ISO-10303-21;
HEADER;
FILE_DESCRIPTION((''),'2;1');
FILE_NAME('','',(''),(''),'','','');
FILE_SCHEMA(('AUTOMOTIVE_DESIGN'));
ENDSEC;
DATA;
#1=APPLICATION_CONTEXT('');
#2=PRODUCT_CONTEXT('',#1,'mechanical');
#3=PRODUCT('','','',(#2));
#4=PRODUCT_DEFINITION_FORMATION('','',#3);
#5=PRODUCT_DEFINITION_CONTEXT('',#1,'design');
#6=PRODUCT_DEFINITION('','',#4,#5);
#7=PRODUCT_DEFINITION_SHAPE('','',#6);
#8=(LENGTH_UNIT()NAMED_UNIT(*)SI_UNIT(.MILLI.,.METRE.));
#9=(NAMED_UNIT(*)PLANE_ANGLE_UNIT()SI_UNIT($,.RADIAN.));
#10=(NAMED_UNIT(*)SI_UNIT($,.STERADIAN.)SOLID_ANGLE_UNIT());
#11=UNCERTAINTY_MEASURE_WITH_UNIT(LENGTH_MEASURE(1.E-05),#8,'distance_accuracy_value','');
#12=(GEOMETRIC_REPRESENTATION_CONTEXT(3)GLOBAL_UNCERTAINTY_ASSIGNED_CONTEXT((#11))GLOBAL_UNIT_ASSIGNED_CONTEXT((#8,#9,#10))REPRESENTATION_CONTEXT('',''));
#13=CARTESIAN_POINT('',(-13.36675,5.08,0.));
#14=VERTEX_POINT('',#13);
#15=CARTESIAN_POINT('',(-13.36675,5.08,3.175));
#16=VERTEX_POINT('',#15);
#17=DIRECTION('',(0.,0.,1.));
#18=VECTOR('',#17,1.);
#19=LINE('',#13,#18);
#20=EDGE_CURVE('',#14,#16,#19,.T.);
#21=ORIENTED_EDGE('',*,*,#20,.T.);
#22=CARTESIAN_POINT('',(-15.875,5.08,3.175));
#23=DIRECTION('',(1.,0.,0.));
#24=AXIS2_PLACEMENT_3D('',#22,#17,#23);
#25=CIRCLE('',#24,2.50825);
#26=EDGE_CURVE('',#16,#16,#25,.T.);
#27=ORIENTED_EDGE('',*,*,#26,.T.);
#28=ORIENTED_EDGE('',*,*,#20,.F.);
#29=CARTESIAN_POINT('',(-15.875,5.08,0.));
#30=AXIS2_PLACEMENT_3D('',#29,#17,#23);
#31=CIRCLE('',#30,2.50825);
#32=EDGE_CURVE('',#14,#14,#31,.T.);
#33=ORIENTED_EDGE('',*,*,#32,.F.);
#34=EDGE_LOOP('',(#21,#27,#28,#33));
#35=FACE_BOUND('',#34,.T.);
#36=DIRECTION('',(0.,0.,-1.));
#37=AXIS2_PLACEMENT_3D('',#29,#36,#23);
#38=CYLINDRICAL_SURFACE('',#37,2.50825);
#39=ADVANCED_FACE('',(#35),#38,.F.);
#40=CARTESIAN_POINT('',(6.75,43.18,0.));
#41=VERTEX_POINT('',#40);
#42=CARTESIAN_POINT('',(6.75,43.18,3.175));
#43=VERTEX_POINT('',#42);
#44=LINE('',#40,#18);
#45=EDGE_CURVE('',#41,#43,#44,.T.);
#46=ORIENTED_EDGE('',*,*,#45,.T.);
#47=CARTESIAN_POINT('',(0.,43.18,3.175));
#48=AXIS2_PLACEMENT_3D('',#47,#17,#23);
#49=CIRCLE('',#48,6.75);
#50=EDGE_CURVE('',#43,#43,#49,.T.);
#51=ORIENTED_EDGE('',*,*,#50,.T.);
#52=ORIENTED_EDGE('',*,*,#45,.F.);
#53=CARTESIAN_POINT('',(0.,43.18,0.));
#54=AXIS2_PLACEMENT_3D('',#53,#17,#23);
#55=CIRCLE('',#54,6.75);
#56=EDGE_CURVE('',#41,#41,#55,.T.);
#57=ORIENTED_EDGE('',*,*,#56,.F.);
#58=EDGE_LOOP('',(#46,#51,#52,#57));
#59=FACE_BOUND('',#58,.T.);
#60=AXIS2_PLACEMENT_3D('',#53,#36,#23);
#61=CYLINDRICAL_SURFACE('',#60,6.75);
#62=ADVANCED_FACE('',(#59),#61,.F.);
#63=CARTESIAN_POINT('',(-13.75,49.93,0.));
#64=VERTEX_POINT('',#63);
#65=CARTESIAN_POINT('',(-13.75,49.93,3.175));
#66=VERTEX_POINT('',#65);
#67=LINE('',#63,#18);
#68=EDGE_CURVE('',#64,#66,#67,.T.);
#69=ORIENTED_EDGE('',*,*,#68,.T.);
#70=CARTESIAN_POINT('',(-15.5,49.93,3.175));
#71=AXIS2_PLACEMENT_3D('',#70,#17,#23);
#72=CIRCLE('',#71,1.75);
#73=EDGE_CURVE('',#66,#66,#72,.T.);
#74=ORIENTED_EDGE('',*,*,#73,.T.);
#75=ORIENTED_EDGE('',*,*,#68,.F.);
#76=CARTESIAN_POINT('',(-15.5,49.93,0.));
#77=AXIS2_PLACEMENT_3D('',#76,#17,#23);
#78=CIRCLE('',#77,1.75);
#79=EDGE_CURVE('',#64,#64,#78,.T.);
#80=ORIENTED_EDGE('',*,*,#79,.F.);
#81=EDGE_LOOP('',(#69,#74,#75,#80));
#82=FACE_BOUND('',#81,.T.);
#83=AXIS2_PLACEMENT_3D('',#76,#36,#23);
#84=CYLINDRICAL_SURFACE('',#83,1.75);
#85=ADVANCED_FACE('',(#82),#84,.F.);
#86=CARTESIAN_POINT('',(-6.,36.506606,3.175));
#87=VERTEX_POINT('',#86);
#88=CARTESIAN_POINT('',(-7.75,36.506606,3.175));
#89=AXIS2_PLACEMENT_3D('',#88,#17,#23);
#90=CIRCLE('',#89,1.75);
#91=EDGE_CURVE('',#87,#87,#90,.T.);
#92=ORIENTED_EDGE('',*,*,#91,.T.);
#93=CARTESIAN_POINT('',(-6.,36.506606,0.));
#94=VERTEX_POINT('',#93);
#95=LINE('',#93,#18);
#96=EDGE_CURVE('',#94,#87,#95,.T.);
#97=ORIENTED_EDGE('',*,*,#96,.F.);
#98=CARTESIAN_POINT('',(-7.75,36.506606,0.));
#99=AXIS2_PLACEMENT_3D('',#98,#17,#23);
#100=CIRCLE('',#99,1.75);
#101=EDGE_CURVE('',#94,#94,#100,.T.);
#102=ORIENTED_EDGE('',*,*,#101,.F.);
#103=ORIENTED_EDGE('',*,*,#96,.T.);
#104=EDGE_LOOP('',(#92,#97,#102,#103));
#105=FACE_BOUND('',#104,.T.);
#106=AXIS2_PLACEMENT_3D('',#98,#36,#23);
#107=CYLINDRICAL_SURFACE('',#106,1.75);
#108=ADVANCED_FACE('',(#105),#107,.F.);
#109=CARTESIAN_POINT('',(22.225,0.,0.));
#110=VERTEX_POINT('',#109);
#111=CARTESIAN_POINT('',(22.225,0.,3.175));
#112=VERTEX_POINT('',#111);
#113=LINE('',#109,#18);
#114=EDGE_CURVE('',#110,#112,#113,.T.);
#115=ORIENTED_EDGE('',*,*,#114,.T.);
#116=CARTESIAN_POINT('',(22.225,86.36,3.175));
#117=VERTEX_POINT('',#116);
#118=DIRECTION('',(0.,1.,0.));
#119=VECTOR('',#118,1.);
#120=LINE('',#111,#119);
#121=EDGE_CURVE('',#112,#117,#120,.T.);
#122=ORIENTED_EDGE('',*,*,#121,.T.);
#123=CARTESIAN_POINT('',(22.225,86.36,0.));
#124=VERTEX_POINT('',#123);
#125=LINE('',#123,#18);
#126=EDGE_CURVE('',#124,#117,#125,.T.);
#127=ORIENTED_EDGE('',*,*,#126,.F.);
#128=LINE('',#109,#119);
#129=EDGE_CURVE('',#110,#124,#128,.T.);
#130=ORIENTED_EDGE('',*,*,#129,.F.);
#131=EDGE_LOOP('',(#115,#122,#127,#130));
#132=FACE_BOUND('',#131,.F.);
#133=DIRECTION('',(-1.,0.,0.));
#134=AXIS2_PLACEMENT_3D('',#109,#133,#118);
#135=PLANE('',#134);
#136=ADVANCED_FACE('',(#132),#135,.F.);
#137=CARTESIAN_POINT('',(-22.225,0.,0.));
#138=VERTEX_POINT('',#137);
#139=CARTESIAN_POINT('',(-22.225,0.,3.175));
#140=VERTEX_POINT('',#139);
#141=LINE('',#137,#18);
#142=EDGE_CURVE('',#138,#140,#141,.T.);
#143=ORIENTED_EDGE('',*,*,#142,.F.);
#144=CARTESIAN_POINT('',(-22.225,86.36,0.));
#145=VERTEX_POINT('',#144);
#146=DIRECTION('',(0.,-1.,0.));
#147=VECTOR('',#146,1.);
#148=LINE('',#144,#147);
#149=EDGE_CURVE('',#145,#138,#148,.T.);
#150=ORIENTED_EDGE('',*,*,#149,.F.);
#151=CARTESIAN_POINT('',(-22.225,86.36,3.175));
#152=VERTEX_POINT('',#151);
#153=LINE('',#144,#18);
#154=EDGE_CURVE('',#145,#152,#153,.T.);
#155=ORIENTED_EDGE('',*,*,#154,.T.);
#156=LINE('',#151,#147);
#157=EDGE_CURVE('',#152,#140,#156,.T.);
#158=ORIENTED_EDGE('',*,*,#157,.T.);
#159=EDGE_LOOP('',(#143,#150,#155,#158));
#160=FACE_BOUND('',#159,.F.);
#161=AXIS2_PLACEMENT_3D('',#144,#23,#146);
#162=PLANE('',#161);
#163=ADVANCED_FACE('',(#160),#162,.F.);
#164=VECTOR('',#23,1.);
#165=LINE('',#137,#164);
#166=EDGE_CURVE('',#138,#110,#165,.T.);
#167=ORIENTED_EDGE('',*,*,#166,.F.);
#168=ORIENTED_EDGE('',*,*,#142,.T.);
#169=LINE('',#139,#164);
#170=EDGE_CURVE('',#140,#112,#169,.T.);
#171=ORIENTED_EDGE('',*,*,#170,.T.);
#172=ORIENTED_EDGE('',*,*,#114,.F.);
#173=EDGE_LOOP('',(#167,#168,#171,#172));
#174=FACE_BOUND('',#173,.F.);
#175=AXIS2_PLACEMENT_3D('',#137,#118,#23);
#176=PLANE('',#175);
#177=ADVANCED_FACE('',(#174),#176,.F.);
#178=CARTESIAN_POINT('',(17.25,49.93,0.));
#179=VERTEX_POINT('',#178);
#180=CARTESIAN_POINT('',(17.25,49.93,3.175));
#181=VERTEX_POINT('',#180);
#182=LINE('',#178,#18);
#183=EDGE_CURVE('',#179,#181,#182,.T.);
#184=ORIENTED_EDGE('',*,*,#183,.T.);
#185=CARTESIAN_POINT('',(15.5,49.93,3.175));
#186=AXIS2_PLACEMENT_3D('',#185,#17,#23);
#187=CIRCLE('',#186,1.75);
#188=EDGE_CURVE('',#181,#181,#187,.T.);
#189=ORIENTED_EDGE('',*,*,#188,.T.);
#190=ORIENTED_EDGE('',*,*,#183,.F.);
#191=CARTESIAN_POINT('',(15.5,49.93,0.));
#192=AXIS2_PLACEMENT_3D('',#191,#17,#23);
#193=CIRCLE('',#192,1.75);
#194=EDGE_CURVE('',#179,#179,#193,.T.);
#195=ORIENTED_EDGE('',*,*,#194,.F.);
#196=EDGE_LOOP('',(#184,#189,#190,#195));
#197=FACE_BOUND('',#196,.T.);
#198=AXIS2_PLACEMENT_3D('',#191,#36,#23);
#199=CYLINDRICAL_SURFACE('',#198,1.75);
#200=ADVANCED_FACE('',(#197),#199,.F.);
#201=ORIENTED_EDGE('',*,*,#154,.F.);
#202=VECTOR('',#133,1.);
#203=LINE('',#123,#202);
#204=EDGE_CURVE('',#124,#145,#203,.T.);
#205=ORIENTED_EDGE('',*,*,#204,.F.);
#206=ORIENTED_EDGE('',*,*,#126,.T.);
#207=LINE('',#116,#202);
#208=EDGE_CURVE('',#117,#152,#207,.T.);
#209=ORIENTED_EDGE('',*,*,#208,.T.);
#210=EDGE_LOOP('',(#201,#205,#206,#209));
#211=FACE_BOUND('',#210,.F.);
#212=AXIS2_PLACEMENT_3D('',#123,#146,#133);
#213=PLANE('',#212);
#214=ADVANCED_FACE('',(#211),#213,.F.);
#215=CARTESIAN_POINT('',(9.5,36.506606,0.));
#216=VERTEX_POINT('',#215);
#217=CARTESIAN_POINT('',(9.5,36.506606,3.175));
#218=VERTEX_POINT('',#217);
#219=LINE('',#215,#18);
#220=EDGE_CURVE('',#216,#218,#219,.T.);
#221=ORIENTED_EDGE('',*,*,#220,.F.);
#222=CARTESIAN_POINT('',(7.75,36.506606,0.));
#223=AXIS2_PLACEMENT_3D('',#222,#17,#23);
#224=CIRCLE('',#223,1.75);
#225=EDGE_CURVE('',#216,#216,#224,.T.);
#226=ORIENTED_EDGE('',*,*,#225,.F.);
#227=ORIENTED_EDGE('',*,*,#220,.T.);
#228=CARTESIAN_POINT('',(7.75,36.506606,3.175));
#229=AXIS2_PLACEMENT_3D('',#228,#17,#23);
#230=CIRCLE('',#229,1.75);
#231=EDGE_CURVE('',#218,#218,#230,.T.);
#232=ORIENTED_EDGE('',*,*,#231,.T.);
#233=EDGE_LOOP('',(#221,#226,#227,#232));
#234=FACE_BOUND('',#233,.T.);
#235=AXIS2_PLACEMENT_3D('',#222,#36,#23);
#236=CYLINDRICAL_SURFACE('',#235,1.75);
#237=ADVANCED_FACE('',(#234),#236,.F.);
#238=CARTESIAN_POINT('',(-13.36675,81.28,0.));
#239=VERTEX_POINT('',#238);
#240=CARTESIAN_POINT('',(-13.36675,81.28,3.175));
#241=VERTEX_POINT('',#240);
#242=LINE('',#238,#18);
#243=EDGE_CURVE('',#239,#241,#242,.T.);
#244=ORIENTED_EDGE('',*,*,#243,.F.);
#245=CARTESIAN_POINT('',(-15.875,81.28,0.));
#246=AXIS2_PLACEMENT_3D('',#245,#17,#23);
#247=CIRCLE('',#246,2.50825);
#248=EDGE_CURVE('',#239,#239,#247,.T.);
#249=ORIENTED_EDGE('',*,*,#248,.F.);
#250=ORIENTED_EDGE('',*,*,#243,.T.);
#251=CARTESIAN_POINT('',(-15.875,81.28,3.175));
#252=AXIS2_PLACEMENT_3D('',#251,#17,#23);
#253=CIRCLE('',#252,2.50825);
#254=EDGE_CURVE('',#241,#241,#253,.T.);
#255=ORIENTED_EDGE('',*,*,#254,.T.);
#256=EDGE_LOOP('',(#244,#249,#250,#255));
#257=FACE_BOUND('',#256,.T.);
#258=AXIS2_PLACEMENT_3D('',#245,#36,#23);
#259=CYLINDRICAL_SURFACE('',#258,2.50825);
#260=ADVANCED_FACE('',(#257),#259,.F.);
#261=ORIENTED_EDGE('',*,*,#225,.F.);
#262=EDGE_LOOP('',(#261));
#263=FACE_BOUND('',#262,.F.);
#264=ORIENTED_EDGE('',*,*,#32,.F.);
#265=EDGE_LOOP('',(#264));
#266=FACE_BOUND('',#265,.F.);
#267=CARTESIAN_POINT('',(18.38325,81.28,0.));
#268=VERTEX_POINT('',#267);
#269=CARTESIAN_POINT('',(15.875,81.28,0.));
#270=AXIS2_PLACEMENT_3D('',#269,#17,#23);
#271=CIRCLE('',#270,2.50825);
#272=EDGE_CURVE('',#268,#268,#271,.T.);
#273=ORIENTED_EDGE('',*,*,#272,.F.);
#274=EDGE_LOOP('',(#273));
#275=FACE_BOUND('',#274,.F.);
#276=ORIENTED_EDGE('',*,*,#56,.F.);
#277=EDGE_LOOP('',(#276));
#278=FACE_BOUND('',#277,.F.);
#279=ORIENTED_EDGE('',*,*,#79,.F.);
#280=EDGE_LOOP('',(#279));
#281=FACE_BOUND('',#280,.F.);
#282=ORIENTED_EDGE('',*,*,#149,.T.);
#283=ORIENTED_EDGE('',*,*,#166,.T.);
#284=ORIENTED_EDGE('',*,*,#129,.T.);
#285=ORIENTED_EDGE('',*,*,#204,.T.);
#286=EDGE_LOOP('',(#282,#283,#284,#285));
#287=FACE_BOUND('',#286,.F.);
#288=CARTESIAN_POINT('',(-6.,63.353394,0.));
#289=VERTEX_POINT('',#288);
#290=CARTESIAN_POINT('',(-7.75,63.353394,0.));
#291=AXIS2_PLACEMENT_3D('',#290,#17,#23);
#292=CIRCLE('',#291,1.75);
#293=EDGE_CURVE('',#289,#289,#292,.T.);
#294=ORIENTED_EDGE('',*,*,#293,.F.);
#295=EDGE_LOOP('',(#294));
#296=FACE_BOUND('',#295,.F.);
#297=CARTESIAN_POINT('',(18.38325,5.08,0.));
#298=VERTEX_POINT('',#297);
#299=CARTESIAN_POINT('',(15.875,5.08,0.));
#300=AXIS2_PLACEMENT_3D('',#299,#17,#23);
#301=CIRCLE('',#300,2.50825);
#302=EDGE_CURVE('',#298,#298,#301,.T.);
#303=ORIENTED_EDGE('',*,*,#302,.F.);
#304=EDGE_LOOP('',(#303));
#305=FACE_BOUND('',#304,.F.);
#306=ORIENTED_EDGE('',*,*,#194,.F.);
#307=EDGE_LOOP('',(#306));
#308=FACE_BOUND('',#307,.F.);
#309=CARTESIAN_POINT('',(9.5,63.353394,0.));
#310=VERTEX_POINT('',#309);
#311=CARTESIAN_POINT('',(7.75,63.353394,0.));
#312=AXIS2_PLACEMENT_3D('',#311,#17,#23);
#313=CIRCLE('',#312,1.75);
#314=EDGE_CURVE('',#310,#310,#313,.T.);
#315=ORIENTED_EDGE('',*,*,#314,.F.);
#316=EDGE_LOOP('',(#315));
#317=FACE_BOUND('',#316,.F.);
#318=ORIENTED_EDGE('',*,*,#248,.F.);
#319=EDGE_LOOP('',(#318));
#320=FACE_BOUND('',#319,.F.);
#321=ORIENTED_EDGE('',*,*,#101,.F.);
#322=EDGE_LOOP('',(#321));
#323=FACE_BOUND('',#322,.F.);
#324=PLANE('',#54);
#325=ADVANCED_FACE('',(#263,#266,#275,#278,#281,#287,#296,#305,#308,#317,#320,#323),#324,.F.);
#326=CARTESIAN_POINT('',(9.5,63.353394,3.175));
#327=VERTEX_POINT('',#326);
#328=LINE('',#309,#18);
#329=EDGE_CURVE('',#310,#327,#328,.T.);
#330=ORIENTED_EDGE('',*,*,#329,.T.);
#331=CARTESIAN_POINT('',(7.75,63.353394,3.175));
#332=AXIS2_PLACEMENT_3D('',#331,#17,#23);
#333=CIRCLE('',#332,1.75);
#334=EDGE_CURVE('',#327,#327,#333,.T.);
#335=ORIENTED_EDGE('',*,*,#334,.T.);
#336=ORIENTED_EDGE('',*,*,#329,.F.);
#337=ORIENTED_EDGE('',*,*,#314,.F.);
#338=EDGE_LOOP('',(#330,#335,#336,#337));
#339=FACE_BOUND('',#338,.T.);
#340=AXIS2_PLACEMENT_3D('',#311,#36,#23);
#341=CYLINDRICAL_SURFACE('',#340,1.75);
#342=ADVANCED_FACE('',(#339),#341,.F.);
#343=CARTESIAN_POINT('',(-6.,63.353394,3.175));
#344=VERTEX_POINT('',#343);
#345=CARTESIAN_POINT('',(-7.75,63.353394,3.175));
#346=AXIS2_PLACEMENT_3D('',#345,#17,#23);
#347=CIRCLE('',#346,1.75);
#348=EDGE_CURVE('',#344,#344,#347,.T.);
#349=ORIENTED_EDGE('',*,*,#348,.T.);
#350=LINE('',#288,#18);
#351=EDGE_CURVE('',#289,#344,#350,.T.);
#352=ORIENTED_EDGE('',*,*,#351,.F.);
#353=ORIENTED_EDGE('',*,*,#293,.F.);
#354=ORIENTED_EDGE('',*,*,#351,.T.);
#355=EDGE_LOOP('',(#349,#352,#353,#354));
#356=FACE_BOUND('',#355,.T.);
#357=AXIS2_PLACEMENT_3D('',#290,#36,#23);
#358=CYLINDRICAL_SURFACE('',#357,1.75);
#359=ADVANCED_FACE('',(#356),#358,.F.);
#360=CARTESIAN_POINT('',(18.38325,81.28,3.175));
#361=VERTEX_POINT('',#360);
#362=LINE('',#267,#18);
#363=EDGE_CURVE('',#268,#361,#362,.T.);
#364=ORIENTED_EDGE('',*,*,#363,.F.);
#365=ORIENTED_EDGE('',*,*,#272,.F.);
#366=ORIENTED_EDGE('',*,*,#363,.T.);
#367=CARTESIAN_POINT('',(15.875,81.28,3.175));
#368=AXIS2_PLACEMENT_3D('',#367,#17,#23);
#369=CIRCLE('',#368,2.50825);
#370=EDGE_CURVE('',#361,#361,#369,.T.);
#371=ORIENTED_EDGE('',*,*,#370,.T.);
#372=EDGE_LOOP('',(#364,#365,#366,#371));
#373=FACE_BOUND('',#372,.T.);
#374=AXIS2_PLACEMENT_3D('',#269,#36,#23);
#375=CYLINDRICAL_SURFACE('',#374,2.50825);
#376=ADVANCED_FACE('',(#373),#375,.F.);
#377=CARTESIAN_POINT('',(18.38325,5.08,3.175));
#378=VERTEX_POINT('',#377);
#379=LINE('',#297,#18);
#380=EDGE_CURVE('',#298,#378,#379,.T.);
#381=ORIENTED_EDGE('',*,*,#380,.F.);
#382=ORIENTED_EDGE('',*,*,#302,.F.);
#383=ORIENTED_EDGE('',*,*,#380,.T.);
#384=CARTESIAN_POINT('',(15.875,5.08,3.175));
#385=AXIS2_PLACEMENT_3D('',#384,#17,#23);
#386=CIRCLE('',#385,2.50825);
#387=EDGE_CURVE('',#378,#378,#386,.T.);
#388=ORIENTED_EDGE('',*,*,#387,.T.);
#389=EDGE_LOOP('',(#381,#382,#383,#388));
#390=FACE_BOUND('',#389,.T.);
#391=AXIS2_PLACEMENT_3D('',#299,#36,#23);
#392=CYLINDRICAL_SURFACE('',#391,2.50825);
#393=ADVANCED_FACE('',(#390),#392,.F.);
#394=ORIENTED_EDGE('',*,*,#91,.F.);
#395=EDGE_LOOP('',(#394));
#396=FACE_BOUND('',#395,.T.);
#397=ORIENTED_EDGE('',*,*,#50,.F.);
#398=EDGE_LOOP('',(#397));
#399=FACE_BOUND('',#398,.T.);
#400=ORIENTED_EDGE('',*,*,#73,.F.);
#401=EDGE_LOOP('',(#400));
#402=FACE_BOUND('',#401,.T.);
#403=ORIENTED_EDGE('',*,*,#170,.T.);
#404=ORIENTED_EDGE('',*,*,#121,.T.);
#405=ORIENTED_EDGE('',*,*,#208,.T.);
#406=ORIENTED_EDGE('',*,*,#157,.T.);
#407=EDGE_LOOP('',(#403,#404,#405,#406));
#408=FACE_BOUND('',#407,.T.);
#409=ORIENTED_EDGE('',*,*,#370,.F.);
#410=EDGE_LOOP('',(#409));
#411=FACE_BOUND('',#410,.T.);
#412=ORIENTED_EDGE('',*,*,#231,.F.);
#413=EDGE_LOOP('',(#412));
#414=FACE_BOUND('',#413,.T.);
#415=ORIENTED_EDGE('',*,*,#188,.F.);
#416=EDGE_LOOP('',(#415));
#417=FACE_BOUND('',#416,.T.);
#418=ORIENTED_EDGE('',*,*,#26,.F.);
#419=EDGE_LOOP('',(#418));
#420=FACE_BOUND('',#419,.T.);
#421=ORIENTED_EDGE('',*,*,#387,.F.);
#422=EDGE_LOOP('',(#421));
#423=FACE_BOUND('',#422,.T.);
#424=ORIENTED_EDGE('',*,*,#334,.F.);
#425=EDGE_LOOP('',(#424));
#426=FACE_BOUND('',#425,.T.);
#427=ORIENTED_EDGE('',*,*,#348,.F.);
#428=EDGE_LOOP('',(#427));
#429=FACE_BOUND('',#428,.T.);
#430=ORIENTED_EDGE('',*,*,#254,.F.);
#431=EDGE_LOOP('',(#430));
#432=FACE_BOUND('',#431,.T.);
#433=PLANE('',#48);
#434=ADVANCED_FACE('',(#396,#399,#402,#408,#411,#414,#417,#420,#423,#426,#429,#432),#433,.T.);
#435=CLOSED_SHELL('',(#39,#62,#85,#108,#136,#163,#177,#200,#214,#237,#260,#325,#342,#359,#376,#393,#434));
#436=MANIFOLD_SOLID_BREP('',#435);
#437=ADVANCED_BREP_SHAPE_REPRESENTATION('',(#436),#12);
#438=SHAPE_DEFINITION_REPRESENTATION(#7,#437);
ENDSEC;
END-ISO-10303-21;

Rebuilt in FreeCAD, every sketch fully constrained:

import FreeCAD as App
import Part
import Sketcher

V = App.Vector
Q = App.Units.Quantity

doc = App.newDocument("Part")
body = doc.addObject("PartDesign::Body", "Body")

sketch1 = doc.addObject("Sketcher::SketchObject", "Sketch")
body.addObject(sketch1)
sketch1.AttachmentSupport = (doc.XY_Plane, [""])
sketch1.MapMode = "FlatFace"
sketch1.addGeometry(Part.LineSegment(V(22.225, 86.36, 0), V(-22.225, 86.36, 0)), False)
sketch1.addGeometry(Part.LineSegment(V(-22.225, 86.36, 0), V(-22.225, 0, 0)), False)
sketch1.addGeometry(Part.LineSegment(V(-22.225, 0, 0), V(22.225, 0, 0)), False)
sketch1.addGeometry(Part.LineSegment(V(22.225, 0, 0), V(22.225, 86.36, 0)), False)
sketch1.addGeometry(Part.Circle(V(-15.875, 5.08, 0), V(0, 0, 1), 2.50825), False)
sketch1.addGeometry(Part.Circle(V(-7.75, 36.506606, 0), V(0, 0, 1), 1.75), False)
sketch1.addGeometry(Part.Circle(V(15.875, 5.08, 0), V(0, 0, 1), 2.50825), False)
sketch1.addGeometry(Part.Circle(V(0, 43.18, 0), V(0, 0, 1), 6.75), False)
sketch1.addGeometry(Part.Circle(V(7.75, 36.506606, 0), V(0, 0, 1), 1.75), False)
sketch1.addGeometry(Part.Circle(V(-15.5, 49.93, 0), V(0, 0, 1), 1.75), False)
sketch1.addGeometry(Part.Circle(V(-7.75, 63.353394, 0), V(0, 0, 1), 1.75), False)
sketch1.addGeometry(Part.Circle(V(-15.875, 81.28, 0), V(0, 0, 1), 2.50825), False)
sketch1.addGeometry(Part.Circle(V(7.75, 63.353394, 0), V(0, 0, 1), 1.75), False)
sketch1.addGeometry(Part.Circle(V(15.5, 49.93, 0), V(0, 0, 1), 1.75), False)
sketch1.addGeometry(Part.Circle(V(15.875, 81.28, 0), V(0, 0, 1), 2.50825), False)
sketch1.addConstraint(Sketcher.Constraint("Coincident", 0, 2, 1, 1))
sketch1.addConstraint(Sketcher.Constraint("Coincident", 1, 2, 2, 1))
sketch1.addConstraint(Sketcher.Constraint("Coincident", 2, 2, 3, 1))
sketch1.addConstraint(Sketcher.Constraint("Coincident", 3, 2, 0, 1))
sketch1.addConstraint(Sketcher.Constraint("Horizontal", 0))
sketch1.addConstraint(Sketcher.Constraint("Vertical", 1))
sketch1.addConstraint(Sketcher.Constraint("Horizontal", 2))
sketch1.addConstraint(Sketcher.Constraint("Vertical", 3))
sketch1.addConstraint(Sketcher.Constraint("Equal", 4, 6))
sketch1.addConstraint(Sketcher.Constraint("Equal", 5, 8))
sketch1.addConstraint(Sketcher.Constraint("Equal", 8, 9))
sketch1.addConstraint(Sketcher.Constraint("Equal", 9, 10))
sketch1.addConstraint(Sketcher.Constraint("Equal", 6, 11))
sketch1.addConstraint(Sketcher.Constraint("Equal", 10, 12))
sketch1.addConstraint(Sketcher.Constraint("Equal", 12, 13))
sketch1.addConstraint(Sketcher.Constraint("Equal", 11, 14))
sketch1.addConstraint(Sketcher.Constraint("Symmetric", 1, 2, 2, 2, -1, 1))
sketch1.addConstraint(Sketcher.Constraint("Symmetric", 4, 3, 6, 3, -2))
sketch1.addConstraint(Sketcher.Constraint("Symmetric", 5, 3, 8, 3, -2))
sketch1.addConstraint(Sketcher.Constraint("Symmetric", 10, 3, 12, 3, -2))
sketch1.addConstraint(Sketcher.Constraint("Symmetric", 9, 3, 13, 3, -2))
sketch1.addConstraint(Sketcher.Constraint("Symmetric", 11, 3, 14, 3, -2))
sketch1.addConstraint(Sketcher.Constraint("PointOnObject", 7, 3, -2))
sketch1.addConstraint(Sketcher.Constraint("Vertical", 5, 3, 10, 3))
sketch1.addConstraint(Sketcher.Constraint("Vertical", 4, 3, 11, 3))
sketch1.addConstraint(Sketcher.Constraint("DistanceY", 1, 2, 1, 1, Q("3.4 in")))
sketch1.addConstraint(Sketcher.Constraint("Diameter", 4, Q("0.1975 in")))
sketch1.addConstraint(Sketcher.Constraint("DistanceX", 0, 2, 0, 1, Q("1.75 in")))
sketch1.addConstraint(Sketcher.Constraint("DistanceY", -1, 1, 4, 3, Q("0.2 in")))
sketch1.addConstraint(Sketcher.Constraint("DistanceY", -1, 1, 7, 3, Q("1.7 in")))
sketch1.addConstraint(Sketcher.Constraint("DistanceY", -1, 1, 11, 3, Q("3.2 in")))
sketch1.addConstraint(Sketcher.Constraint("DistanceX", 0, 2, 14, 3, Q("1.5 in")))
sketch1.addConstraint(Sketcher.Constraint("Diameter", 5, 3.5))
sketch1.addConstraint(Sketcher.Constraint("Diameter", 7, 13.5))
sketch1.addConstraint(Sketcher.Constraint("DistanceX", 5, 3, -1, 1, 7.75))
sketch1.addConstraint(Sketcher.Constraint("DistanceX", 9, 3, -1, 1, 15.5))
sketch1.addConstraint(Sketcher.Constraint("DistanceY", -1, 1, 9, 3, 49.93))
sketch1.addConstraint(Sketcher.Constraint("DistanceY", -1, 1, 5, 3, 36.506606))
sketch1.addConstraint(Sketcher.Constraint("DistanceY", -1, 1, 10, 3, 63.353394))
pad1 = doc.addObject("PartDesign::Pad", "Pad")
body.addObject(pad1)
pad1.Profile = sketch1
pad1.Length = Q("0.125 in")

doc.recompute()
